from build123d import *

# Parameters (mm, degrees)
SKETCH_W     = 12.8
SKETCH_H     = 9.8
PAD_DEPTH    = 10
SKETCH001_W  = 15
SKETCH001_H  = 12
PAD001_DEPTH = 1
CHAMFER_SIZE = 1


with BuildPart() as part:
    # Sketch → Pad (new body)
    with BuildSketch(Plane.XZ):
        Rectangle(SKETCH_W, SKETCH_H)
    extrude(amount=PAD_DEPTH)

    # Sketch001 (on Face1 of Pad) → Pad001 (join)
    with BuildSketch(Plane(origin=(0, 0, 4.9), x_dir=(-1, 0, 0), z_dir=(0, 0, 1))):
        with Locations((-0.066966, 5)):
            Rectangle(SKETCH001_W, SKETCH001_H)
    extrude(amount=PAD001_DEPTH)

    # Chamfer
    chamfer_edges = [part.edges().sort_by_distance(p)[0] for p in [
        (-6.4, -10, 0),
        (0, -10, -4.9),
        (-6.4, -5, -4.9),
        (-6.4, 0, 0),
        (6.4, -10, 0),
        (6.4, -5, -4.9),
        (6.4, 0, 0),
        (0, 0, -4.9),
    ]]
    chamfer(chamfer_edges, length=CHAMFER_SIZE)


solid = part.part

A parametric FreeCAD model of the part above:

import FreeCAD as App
import Part
import Sketcher

V = App.Vector


def edges_at(feature, points):
    """Names of the edges that pass closest to the given points."""
    edges = feature.Shape.Edges
    near = lambda p: min(range(len(edges)), key=lambda i: edges[i].distToShape(Part.Vertex(*p))[0])
    return sorted({f"Edge{near(p) + 1}" for p in points})

doc = App.newDocument("Part")
body = doc.addObject("PartDesign::Body", "Body")

sketch1 = doc.addObject("Sketcher::SketchObject", "Sketch")
body.addObject(sketch1)
sketch1.AttachmentSupport = (doc.XZ_Plane, [""])
sketch1.MapMode = "FlatFace"
sketch1.addGeometry([
    Part.LineSegment(V(-6.4, 4.9, 0), V(-6.4, -4.9, 0)),
    Part.LineSegment(V(-6.4, -4.9, 0), V(6.4, -4.9, 0)),
    Part.LineSegment(V(6.4, -4.9, 0), V(6.4, 4.9, 0)),
    Part.LineSegment(V(6.4, 4.9, 0), V(-6.4, 4.9, 0)),
], False)
sketch1.addConstraint([
    Sketcher.Constraint("Coincident", 0, 2, 1, 1),
    Sketcher.Constraint("Coincident", 1, 2, 2, 1),
    Sketcher.Constraint("Coincident", 2, 2, 3, 1),
    Sketcher.Constraint("Coincident", 3, 2, 0, 1),
    Sketcher.Constraint("Vertical", 0),
    Sketcher.Constraint("Horizontal", 1),
    Sketcher.Constraint("Vertical", 2),
    Sketcher.Constraint("Horizontal", 3),
    Sketcher.Constraint("Symmetric", 0, 2, 2, 2, -1, 1),
    Sketcher.Constraint("DistanceX", 1, 1, 1, 2, 12.8),
    Sketcher.Constraint("DistanceY", 0, 2, 0, 1, 9.8),
])
pad1 = doc.addObject("PartDesign::Pad", "Pad")
body.addObject(pad1)
pad1.Profile = sketch1
pad1.Length = 10

sketch2 = doc.addObject("Sketcher::SketchObject", "Sketch001")
body.addObject(sketch2)
sketch2.AttachmentSupport = (doc.XY_Plane, [""])
sketch2.MapMode = "FlatFace"
sketch2.AttachmentOffset = App.Placement(V(0, 0, 4.9), App.Rotation())
sketch2.addGeometry([
    Part.LineSegment(V(7.566966, -11, 0), V(7.566966, 1, 0)),
    Part.LineSegment(V(7.566966, 1, 0), V(-7.433034, 1, 0)),
    Part.LineSegment(V(-7.433034, 1, 0), V(-7.433034, -11, 0)),
    Part.LineSegment(V(-7.433034, -11, 0), V(7.566966, -11, 0)),
], False)
sketch2.addConstraint([
    Sketcher.Constraint("Coincident", 0, 2, 1, 1),
    Sketcher.Constraint("Coincident", 1, 2, 2, 1),
    Sketcher.Constraint("Coincident", 2, 2, 3, 1),
    Sketcher.Constraint("Coincident", 3, 2, 0, 1),
    Sketcher.Constraint("Vertical", 0),
    Sketcher.Constraint("Horizontal", 1),
    Sketcher.Constraint("Vertical", 2),
    Sketcher.Constraint("Horizontal", 3),
    Sketcher.Constraint("DistanceX", 1, 2, 1, 1, 15.0),
    Sketcher.Constraint("DistanceY", 0, 1, 0, 2, 12.0),
    Sketcher.Constraint("DistanceY", -1, 1, 0, 2, 1.0),
    Sketcher.Constraint("DistanceX", -1, 1, 0, 2, 7.566966),
])
pad2 = doc.addObject("PartDesign::Pad", "Pad001")
body.addObject(pad2)
pad2.Profile = sketch2
pad2.Length = 1
doc.recompute()

chamfer = doc.addObject("PartDesign::Chamfer", "Chamfer")
body.addObject(chamfer)
chamfer.Base = (pad2, edges_at(pad2, [
    (-6.4, -10, 0),
    (0, -10, -4.9),
    (-6.4, -5, -4.9),
    (-6.4, 0, 0),
    (6.4, -10, 0),
    (6.4, -5, -4.9),
    (6.4, 0, 0),
    (0, 0, -4.9),
]))
chamfer.Size = 1

doc.recompute()
